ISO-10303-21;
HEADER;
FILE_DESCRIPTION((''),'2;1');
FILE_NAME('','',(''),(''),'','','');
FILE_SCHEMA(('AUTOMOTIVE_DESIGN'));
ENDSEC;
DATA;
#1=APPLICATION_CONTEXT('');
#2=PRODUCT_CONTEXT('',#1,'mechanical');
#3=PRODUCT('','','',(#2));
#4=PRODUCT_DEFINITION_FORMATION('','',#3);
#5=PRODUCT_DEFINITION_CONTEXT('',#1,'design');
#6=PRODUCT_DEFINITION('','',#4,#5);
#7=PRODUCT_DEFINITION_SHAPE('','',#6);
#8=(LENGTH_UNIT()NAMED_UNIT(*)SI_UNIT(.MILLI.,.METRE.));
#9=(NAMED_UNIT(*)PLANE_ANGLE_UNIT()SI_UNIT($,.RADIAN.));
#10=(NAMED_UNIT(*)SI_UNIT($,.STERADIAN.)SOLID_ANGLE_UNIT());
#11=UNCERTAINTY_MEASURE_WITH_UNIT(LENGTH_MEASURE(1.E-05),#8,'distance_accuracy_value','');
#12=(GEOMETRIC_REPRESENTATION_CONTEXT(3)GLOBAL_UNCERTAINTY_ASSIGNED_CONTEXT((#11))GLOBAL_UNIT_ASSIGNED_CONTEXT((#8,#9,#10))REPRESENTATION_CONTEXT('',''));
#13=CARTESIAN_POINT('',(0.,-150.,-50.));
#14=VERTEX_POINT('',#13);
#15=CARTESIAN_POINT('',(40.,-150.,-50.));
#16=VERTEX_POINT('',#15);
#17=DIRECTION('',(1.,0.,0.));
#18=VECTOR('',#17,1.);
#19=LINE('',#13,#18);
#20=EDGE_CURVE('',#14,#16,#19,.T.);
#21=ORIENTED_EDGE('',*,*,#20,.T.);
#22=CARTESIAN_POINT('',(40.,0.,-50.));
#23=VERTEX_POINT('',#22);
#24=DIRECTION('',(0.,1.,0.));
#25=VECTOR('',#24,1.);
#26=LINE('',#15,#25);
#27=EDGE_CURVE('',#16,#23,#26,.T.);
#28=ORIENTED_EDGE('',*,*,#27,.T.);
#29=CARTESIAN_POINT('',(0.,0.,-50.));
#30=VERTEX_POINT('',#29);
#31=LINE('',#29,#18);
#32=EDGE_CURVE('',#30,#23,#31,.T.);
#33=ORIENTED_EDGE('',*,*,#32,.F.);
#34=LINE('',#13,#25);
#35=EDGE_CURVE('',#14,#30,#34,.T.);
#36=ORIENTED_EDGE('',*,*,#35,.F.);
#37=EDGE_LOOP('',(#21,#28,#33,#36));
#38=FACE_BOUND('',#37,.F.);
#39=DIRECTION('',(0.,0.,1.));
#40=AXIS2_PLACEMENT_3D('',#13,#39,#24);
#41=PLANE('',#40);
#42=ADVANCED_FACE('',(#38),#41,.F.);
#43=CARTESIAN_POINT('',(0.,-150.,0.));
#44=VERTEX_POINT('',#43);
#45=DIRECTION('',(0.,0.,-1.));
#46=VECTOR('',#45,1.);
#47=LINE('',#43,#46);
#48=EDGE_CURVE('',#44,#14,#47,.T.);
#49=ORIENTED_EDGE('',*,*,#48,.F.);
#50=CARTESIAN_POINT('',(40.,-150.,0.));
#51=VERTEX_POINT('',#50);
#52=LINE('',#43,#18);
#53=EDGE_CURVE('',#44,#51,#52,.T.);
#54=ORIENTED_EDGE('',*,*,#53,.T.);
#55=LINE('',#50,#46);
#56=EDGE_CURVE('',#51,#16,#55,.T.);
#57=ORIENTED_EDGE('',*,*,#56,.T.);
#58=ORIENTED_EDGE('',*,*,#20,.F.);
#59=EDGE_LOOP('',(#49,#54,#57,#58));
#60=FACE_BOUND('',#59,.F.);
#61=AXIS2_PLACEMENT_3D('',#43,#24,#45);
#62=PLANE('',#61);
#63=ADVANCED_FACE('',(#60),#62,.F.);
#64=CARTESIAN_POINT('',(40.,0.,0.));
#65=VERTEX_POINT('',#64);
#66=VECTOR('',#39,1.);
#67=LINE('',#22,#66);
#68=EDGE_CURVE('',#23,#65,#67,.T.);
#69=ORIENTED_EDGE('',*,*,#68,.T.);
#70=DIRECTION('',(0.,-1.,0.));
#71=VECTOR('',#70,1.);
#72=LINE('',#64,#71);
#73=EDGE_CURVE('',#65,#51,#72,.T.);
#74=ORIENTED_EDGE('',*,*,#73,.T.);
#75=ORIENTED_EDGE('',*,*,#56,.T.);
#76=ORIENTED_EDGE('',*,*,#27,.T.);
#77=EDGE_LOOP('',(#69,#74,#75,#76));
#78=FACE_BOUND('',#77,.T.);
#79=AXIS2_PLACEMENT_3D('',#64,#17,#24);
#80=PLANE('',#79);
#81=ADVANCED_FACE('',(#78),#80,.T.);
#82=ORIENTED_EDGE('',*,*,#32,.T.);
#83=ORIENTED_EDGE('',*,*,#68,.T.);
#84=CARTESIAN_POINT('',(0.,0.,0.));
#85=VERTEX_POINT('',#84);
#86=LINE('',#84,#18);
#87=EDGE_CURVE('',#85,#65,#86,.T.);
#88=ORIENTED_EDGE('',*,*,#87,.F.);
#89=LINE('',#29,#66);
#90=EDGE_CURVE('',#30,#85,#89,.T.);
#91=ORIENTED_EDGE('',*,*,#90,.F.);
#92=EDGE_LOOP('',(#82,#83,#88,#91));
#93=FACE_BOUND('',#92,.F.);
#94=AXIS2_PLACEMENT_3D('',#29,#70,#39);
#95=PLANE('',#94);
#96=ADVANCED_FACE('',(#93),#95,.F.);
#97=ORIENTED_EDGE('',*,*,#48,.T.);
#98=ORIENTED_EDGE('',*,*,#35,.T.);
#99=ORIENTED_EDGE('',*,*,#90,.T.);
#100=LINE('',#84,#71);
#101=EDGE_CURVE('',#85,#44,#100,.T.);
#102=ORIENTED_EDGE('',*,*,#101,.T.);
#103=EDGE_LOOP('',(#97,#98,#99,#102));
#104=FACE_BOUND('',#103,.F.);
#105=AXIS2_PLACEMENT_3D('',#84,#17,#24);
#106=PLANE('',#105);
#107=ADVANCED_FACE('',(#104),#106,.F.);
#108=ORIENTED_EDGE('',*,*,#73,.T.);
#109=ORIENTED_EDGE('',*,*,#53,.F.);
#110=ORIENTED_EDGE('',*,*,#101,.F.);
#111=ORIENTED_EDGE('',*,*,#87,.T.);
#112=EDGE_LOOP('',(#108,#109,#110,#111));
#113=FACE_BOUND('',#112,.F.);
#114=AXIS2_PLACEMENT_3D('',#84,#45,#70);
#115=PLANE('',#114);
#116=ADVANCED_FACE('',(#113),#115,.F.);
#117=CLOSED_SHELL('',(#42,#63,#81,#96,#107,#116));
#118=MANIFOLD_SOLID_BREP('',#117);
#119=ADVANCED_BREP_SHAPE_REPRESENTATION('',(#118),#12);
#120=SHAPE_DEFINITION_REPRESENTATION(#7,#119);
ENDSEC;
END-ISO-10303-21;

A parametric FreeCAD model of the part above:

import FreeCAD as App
import Part
import Sketcher

V = App.Vector
Q = App.Units.Quantity

doc = App.newDocument("Part")
body = doc.addObject("PartDesign::Body", "Body")

# Sketch on YZ plane
sketch1 = body.newObject("Sketcher::SketchObject", "Sketch")
sketch1.AttachmentSupport = (doc.getObject("YZ_Plane"), [""])
sketch1.MapMode = "FlatFace"
sketch1.addGeometry(Part.LineSegment(V(0, -50, 0), V(0, 0, 0)), False)
sketch1.addGeometry(Part.LineSegment(V(0, 0, 0), V(-150, 0, 0)), False)
sketch1.addGeometry(Part.LineSegment(V(-150, 0, 0), V(-150, -50, 0)), False)
sketch1.addGeometry(Part.LineSegment(V(-150, -50, 0), V(0, -50, 0)), False)
sketch1.addConstraint(Sketcher.Constraint("Coincident", 0, 2, 1, 1))
sketch1.addConstraint(Sketcher.Constraint("Coincident", 1, 2, 2, 1))
sketch1.addConstraint(Sketcher.Constraint("Coincident", 2, 2, 3, 1))
sketch1.addConstraint(Sketcher.Constraint("Coincident", 3, 2, 0, 1))
sketch1.addConstraint(Sketcher.Constraint("Vertical", 0))
sketch1.addConstraint(Sketcher.Constraint("Horizontal", 1))
sketch1.addConstraint(Sketcher.Constraint("Vertical", 2))
sketch1.addConstraint(Sketcher.Constraint("Horizontal", 3))
sketch1.addConstraint(Sketcher.Constraint("Coincident", 0, 2, -1, 1))
sketch1.addConstraint(Sketcher.Constraint("DistanceX", 1, 2, 1, 1, Q("150 mm")))
sketch1.addConstraint(Sketcher.Constraint("DistanceY", 0, 1, 0, 2, Q("50 mm")))
pad1 = body.newObject("PartDesign::Pad", "Pad")
pad1.Profile = sketch1
pad1.Length = 40

doc.recompute()
